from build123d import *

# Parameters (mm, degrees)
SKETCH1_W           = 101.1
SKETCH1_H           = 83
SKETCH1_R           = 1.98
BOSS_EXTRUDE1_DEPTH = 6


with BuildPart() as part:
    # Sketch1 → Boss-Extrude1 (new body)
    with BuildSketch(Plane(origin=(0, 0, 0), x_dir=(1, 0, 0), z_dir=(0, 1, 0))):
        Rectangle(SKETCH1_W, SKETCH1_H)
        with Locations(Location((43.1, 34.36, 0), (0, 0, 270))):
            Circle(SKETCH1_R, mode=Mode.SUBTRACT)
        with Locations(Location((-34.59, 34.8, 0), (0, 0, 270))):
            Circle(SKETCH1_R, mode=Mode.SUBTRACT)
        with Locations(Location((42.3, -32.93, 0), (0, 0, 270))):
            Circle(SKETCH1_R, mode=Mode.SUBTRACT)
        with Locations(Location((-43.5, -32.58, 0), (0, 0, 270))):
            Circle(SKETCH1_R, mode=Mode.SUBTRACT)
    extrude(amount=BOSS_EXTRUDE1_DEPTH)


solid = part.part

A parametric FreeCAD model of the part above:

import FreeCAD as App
import Part
import Sketcher

V = App.Vector
Q = App.Units.Quantity


def add_polygon(sketch, points):
    """Adds a closed chain of lines whose ends are joined by coincident constraints."""
    first, n = sketch.GeometryCount, len(points)
    for a, b in zip(points, points[1:] + points[:1]):
        sketch.addGeometry(Part.LineSegment(App.Vector(*a, 0), App.Vector(*b, 0)), False)
    for i in range(n):
        sketch.addConstraint(Sketcher.Constraint("Coincident", first + i, 2, first + (i + 1) % n, 1))

doc = App.newDocument("Part")
body = doc.addObject("PartDesign::Body", "Body")

sketch1 = doc.addObject("Sketcher::SketchObject", "Sketch")
body.addObject(sketch1)
sketch1.AttachmentSupport = (doc.XZ_Plane, [""])
sketch1.MapMode = "FlatFace"
add_polygon(sketch1, [(-50.55, -41.5), (-50.55, 41.5), (50.55, 41.5), (50.55, -41.5)])
sketch1.addGeometry(Part.Circle(V(-43.5, 32.58, 0), V(0, 0, 1), 1.98), False)
sketch1.addGeometry(Part.Circle(V(42.3, 32.93, 0), V(0, 0, 1), 1.98), False)
sketch1.addGeometry(Part.Circle(V(-34.59, -34.8, 0), V(0, 0, 1), 1.98), False)
sketch1.addGeometry(Part.Circle(V(43.1, -34.36, 0), V(0, 0, 1), 1.98), False)
sketch1.addConstraint([
    Sketcher.Constraint("Vertical", 0),
    Sketcher.Constraint("Horizontal", 1),
    Sketcher.Constraint("Vertical", 2),
    Sketcher.Constraint("Horizontal", 3),
    Sketcher.Constraint("Equal", 4, 5),
    Sketcher.Constraint("Equal", 5, 6),
    Sketcher.Constraint("Equal", 6, 7),
    Sketcher.Constraint("Symmetric", 0, 2, 2, 2, -1, 1),
    Sketcher.Constraint("Diameter", 4, Q("3.96 mm")),
    Sketcher.Constraint("DistanceY", 0, 1, 0, 2, Q("83 mm")),
    Sketcher.Constraint("DistanceX", 1, 1, 1, 2, Q("101.1 mm")),
    Sketcher.Constraint("DistanceX", 4, 3, -1, 1, Q("43.5 mm")),
    Sketcher.Constraint("DistanceX", -1, 1, 5, 3, Q("42.3 mm")),
    Sketcher.Constraint("DistanceY", 6, 3, -1, 1, Q("34.8 mm")),
    Sketcher.Constraint("DistanceX", -1, 1, 7, 3, Q("43.1 mm")),
    Sketcher.Constraint("DistanceY", -1, 1, 4, 3, Q("32.58 mm")),
    Sketcher.Constraint("DistanceY", -1, 1, 5, 3, Q("32.93 mm")),
    Sketcher.Constraint("DistanceX", 6, 3, -1, 1, Q("34.59 mm")),
    Sketcher.Constraint("DistanceY", 7, 3, -1, 1, Q("34.36 mm")),
])
pad1 = doc.addObject("PartDesign::Pad", "Pad")
body.addObject(pad1)
pad1.Profile = sketch1
pad1.Length = 6
pad1.Reversed = True

doc.recompute()
